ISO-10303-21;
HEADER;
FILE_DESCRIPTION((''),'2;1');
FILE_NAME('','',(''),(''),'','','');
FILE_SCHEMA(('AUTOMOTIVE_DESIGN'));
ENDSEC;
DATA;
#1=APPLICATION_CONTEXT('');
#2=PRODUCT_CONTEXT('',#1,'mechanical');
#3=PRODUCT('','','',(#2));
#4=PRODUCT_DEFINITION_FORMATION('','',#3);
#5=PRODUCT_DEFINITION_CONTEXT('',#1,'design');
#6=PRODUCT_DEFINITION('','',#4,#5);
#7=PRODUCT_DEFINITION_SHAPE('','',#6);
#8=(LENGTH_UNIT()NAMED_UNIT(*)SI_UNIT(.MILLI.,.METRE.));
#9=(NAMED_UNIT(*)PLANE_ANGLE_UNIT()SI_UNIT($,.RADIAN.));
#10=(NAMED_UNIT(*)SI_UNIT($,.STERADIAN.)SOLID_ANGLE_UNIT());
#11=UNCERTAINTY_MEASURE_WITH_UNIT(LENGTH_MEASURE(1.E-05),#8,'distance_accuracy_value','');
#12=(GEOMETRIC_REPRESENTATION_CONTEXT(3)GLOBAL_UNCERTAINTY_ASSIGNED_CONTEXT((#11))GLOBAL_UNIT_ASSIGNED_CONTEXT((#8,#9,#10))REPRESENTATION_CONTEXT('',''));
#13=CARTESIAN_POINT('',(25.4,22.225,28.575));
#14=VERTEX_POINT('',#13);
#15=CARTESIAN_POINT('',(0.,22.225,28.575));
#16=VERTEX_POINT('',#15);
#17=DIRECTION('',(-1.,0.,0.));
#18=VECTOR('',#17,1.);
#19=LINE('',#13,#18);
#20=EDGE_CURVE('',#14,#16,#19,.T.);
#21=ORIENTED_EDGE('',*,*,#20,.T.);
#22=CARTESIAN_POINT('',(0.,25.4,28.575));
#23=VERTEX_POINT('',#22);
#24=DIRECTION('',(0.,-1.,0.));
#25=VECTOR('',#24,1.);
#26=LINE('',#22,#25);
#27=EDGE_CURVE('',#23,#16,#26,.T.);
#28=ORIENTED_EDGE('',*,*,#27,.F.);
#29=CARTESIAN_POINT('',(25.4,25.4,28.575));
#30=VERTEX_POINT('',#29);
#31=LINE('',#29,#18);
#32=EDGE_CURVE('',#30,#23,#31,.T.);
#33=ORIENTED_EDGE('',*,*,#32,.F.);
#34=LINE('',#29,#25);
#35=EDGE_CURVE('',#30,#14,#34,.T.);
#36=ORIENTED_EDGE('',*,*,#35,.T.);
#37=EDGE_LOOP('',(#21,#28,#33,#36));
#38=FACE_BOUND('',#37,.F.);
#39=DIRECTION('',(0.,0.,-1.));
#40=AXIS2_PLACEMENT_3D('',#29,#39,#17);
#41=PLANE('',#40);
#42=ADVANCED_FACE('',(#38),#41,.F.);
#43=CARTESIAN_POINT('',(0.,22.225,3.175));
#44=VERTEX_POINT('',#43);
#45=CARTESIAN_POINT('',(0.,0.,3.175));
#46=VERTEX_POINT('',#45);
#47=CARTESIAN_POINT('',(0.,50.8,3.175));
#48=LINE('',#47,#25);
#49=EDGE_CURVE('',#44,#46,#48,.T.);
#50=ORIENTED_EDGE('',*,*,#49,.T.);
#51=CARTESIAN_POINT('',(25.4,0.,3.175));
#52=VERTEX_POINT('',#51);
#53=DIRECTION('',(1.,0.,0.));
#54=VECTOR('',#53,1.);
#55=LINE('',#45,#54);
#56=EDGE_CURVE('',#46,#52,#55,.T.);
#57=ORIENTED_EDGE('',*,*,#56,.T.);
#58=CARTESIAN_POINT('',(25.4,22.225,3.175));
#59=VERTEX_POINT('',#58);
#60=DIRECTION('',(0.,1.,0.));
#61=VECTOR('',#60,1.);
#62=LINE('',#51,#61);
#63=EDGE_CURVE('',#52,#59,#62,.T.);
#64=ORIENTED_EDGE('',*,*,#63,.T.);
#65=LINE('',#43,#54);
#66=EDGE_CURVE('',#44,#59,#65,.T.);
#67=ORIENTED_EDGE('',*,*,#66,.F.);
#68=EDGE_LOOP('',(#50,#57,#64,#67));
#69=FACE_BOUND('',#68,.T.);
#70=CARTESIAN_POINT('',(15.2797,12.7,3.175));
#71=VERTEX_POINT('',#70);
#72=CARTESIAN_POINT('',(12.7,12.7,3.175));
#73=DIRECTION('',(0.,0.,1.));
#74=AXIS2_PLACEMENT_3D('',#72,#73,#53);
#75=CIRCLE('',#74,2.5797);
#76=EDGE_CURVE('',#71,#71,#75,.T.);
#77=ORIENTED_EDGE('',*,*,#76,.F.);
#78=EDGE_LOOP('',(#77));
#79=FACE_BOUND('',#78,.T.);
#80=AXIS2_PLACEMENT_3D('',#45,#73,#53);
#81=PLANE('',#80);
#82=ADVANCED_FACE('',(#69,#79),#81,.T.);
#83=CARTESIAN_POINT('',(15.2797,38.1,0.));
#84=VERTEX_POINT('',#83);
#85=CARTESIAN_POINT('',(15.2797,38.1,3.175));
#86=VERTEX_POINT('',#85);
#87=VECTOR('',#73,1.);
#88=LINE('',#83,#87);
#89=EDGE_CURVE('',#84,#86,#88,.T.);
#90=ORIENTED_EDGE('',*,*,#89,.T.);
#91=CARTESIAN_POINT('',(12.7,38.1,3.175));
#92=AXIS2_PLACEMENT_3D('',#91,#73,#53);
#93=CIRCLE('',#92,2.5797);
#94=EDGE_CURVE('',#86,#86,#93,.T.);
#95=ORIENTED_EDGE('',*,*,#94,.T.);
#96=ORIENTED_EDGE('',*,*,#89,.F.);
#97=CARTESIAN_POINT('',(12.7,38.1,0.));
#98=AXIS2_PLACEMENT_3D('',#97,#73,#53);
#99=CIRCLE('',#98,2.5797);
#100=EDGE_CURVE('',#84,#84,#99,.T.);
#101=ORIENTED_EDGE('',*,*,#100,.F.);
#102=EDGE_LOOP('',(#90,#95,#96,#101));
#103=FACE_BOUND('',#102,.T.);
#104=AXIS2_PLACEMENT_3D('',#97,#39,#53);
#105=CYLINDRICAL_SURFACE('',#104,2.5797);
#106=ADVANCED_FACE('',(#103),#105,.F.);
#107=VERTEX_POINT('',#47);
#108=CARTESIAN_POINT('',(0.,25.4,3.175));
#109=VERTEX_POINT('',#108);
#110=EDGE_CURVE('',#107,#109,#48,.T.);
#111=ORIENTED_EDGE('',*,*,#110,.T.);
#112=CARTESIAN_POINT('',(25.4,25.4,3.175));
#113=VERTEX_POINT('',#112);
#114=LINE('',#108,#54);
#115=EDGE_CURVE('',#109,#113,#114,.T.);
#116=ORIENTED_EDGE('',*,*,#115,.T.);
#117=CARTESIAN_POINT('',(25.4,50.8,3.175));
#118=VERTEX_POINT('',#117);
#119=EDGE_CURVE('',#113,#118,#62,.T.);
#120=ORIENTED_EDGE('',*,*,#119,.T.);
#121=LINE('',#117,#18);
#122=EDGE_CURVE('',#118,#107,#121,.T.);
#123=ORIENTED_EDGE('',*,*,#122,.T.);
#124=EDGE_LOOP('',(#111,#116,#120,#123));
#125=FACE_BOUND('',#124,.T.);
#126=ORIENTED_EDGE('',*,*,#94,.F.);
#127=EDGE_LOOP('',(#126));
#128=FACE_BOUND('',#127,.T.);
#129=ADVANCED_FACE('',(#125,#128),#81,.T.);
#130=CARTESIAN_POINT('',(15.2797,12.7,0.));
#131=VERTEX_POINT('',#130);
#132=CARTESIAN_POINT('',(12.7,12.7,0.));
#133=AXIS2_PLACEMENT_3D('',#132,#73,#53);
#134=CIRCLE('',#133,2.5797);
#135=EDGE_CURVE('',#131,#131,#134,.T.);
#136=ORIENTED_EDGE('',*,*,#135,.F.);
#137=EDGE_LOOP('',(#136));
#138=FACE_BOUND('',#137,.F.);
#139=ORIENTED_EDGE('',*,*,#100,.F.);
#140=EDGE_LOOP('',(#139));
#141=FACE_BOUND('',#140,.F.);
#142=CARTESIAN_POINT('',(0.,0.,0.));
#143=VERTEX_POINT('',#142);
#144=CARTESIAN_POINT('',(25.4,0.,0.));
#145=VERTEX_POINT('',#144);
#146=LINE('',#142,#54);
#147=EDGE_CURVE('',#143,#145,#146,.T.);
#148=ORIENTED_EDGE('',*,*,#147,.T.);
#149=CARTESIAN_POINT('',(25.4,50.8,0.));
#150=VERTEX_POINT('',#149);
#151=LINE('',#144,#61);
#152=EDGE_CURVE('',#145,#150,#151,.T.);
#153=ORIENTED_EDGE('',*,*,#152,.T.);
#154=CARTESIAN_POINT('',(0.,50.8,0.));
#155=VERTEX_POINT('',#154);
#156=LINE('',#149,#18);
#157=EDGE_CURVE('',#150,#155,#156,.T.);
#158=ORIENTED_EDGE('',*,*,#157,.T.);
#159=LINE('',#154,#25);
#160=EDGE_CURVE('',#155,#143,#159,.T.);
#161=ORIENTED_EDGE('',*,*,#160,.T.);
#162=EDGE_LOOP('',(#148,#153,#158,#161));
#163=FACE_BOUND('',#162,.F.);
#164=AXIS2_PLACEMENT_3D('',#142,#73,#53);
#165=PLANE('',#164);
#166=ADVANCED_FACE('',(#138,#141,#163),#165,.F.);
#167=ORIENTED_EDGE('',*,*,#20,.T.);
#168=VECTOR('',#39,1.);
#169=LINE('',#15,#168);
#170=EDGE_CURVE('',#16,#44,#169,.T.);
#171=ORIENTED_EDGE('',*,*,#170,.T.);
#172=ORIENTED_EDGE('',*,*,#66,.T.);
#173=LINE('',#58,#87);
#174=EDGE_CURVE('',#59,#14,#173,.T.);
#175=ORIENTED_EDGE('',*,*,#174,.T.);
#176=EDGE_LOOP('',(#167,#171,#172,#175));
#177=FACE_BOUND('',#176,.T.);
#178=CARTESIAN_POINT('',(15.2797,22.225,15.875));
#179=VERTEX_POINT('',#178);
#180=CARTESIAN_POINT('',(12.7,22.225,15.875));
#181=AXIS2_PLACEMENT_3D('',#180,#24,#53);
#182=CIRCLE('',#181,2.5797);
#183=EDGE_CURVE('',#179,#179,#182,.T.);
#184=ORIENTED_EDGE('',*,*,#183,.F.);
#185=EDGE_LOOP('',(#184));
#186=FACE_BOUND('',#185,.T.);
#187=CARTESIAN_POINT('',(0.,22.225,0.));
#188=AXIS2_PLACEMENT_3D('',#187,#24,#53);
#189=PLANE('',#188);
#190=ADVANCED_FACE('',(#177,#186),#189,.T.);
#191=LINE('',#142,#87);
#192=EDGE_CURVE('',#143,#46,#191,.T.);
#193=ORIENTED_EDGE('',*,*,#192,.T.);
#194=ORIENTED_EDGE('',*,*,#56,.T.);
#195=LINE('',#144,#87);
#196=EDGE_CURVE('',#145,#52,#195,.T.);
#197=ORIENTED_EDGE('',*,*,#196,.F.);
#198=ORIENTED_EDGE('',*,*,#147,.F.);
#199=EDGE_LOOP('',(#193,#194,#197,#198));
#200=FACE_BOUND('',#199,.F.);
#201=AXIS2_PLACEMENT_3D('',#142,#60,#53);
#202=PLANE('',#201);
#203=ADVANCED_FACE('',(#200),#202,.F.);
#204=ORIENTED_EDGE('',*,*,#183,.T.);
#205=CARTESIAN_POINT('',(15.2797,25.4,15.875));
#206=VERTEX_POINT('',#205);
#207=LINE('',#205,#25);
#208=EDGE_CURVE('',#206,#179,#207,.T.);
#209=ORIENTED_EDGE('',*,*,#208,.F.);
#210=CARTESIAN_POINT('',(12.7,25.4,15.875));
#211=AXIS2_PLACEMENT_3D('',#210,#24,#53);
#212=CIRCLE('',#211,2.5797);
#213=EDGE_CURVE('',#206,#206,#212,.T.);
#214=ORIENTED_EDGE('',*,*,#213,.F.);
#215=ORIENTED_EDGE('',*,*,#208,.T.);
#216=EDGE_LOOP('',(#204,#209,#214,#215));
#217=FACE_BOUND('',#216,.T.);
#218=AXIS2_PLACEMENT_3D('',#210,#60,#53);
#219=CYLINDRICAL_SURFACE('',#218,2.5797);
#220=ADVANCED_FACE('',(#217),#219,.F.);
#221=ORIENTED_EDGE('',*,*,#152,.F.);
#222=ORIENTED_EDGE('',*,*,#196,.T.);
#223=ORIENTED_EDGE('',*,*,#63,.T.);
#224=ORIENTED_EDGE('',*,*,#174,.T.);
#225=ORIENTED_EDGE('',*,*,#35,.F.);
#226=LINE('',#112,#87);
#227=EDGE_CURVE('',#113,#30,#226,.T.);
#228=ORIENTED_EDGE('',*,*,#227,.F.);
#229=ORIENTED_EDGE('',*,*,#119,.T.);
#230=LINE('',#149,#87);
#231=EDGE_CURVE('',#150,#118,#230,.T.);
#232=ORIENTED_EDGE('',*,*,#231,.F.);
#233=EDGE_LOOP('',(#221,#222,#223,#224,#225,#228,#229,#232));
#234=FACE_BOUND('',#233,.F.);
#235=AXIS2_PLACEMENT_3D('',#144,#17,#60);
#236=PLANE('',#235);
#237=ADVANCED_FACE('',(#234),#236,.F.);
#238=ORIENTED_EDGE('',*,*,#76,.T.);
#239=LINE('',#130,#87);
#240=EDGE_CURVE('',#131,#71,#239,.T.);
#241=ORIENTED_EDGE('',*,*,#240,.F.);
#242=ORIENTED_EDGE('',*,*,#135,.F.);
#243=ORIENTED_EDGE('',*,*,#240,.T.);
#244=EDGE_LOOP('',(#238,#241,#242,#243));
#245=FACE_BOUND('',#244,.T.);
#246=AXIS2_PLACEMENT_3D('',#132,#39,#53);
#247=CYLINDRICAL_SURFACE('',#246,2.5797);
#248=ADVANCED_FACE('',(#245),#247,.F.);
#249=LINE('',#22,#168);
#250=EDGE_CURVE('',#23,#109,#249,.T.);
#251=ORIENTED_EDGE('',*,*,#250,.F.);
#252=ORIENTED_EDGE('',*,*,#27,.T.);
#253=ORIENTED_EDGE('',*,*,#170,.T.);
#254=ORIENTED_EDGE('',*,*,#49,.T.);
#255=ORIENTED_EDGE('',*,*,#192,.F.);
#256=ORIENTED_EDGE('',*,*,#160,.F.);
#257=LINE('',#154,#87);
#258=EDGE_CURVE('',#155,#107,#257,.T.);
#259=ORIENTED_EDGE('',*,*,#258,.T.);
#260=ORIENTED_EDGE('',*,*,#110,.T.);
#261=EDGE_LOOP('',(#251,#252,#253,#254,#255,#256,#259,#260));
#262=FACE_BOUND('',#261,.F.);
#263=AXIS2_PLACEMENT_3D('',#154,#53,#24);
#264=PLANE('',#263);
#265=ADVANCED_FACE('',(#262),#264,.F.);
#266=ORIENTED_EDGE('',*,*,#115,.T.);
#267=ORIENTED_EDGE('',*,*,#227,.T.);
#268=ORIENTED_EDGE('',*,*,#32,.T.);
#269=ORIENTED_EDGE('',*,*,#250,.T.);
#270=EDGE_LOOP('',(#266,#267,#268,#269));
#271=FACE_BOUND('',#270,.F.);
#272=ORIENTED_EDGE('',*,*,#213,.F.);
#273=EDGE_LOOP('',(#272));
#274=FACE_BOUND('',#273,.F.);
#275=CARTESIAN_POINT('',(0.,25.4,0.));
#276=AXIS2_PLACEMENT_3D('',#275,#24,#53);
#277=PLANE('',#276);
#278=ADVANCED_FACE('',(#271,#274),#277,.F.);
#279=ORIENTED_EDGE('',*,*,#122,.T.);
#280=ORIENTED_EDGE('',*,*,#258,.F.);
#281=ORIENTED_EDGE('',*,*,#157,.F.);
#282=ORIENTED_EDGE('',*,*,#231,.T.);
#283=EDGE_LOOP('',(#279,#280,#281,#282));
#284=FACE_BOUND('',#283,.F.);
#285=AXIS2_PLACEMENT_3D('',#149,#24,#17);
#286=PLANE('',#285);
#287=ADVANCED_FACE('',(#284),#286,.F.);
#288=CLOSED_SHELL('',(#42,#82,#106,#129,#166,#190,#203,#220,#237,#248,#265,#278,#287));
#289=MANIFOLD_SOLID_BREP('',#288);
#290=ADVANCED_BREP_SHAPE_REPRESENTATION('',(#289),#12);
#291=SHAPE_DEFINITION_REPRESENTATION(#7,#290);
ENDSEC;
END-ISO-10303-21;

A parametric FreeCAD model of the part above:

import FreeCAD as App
import Part
import Sketcher
from FreeCAD import Vector
Q = App.Units.Quantity


def add_polygon(sketch, points):
    """Adds a closed chain of lines whose ends are joined by coincident constraints."""
    first, n = sketch.GeometryCount, len(points)
    for a, b in zip(points, points[1:] + points[:1]):
        sketch.addGeometry(Part.LineSegment(App.Vector(*a, 0), App.Vector(*b, 0)), False)
    for i in range(n):
        sketch.addConstraint(Sketcher.Constraint("Coincident", first + i, 2, first + (i + 1) % n, 1))

doc = App.newDocument("Part")
params = doc.addObject("Spreadsheet::Sheet", "Params")
for row, (alias, value) in enumerate([
    ("sketch1_width", "1 in"),
    ("sketch1_diameter", "0.203126 in"),
    ("pad1_length", "0.125 in"),
    ("sketch2_width", "1 in"),
    ("sketch2_height", "2 in"),
    ("sketch2_diameter", "0.203126 in"),
    ("pad2_length", "0.125 in"),
], start=1):
    params.set(f"A{row}", alias)
    params.set(f"B{row}", "=" + value)
    params.setAlias(f"B{row}", alias)

body = doc.addObject("PartDesign::Body", "Body")

sketch1 = body.newObject("Sketcher::SketchObject", "Sketch")
sketch1.AttachmentSupport = (doc.getObject("XZ_Plane"), [""])
sketch1.MapMode = "FlatFace"
sketch1.AttachmentOffset = App.Placement(Vector(0, 0, -1 * 25.4), App.Rotation())
add_polygon(sketch1, [(0, 28.6), (0, 3.2), (25.4, 3.2), (25.4, 28.6)])
sketch1.addGeometry(Part.Circle(Vector(12.7, 15.9, 0), Vector(0, 0, 1), 2.6), False)
sketch1.addConstraint([
    Sketcher.Constraint("Vertical", 0),
    Sketcher.Constraint("Horizontal", 1),
    Sketcher.Constraint("Vertical", 2),
    Sketcher.Constraint("Horizontal", 3),
    Sketcher.Constraint("PointOnObject", 0, 2, -2),
    Sketcher.Constraint("Equal", 3, 0),
    Sketcher.Constraint("DistanceX", 1, 1, 1, 2, Q("1 in")),
    Sketcher.Constraint("Diameter", 4, Q("0.203126 in")),
    Sketcher.Constraint("DistanceX", -1, 1, 4, 3, Q("0.5 in")),
    Sketcher.Constraint("DistanceY", 0, 2, 4, 3, Q("0.5 in")),
    Sketcher.Constraint("DistanceY", -1, 1, 4, 3, Q("0.625 in")),
])
sketch1.setExpression("Constraints[10]", "Params.sketch1_width")
sketch1.setExpression("Constraints[11]", "Params.sketch1_diameter")
pad1 = body.newObject("PartDesign::Pad", "Pad")
pad1.Profile = sketch1
pad1.setExpression("Length", "Params.pad1_length")

sketch2 = body.newObject("Sketcher::SketchObject", "Sketch001")
sketch2.AttachmentSupport = (doc.getObject("XY_Plane"), [""])
sketch2.MapMode = "FlatFace"
add_polygon(sketch2, [(0, 50.8), (0, 0), (25.4, 0), (25.4, 50.8)])
sketch2.addGeometry(Part.Circle(Vector(12.7, 12.7, 0), Vector(0, 0, 1), 2.6), False)
sketch2.addGeometry(Part.Circle(Vector(12.7, 38.1, 0), Vector(0, 0, 1), 2.6), False)
sketch2.addConstraint([
    Sketcher.Constraint("Vertical", 0),
    Sketcher.Constraint("Horizontal", 1),
    Sketcher.Constraint("Vertical", 2),
    Sketcher.Constraint("Horizontal", 3),
    Sketcher.Constraint("Coincident", 0, 2, -1, 1),
    Sketcher.Constraint("Equal", 4, 5),
    Sketcher.Constraint("Vertical", 4, 3, 5, 3),
    Sketcher.Constraint("DistanceX", 1, 1, 1, 2, Q("1 in")),
    Sketcher.Constraint("DistanceY", 0, 2, 0, 1, Q("2 in")),
    Sketcher.Constraint("Diameter", 4, Q("0.203126 in")),
    Sketcher.Constraint("DistanceY", 4, 3, 5, 3, Q("1 in")),
    Sketcher.Constraint("DistanceX", -1, 1, 4, 3, Q("0.5 in")),
    Sketcher.Constraint("DistanceY", -1, 1, 4, 3, Q("0.5 in")),
])
sketch2.setExpression("Constraints[11]", "Params.sketch2_width")
sketch2.setExpression("Constraints[12]", "Params.sketch2_height")
sketch2.setExpression("Constraints[13]", "Params.sketch2_diameter")
pad2 = body.newObject("PartDesign::Pad", "Pad001")
pad2.Profile = sketch2
pad2.setExpression("Length", "Params.pad2_length")

doc.recompute()
